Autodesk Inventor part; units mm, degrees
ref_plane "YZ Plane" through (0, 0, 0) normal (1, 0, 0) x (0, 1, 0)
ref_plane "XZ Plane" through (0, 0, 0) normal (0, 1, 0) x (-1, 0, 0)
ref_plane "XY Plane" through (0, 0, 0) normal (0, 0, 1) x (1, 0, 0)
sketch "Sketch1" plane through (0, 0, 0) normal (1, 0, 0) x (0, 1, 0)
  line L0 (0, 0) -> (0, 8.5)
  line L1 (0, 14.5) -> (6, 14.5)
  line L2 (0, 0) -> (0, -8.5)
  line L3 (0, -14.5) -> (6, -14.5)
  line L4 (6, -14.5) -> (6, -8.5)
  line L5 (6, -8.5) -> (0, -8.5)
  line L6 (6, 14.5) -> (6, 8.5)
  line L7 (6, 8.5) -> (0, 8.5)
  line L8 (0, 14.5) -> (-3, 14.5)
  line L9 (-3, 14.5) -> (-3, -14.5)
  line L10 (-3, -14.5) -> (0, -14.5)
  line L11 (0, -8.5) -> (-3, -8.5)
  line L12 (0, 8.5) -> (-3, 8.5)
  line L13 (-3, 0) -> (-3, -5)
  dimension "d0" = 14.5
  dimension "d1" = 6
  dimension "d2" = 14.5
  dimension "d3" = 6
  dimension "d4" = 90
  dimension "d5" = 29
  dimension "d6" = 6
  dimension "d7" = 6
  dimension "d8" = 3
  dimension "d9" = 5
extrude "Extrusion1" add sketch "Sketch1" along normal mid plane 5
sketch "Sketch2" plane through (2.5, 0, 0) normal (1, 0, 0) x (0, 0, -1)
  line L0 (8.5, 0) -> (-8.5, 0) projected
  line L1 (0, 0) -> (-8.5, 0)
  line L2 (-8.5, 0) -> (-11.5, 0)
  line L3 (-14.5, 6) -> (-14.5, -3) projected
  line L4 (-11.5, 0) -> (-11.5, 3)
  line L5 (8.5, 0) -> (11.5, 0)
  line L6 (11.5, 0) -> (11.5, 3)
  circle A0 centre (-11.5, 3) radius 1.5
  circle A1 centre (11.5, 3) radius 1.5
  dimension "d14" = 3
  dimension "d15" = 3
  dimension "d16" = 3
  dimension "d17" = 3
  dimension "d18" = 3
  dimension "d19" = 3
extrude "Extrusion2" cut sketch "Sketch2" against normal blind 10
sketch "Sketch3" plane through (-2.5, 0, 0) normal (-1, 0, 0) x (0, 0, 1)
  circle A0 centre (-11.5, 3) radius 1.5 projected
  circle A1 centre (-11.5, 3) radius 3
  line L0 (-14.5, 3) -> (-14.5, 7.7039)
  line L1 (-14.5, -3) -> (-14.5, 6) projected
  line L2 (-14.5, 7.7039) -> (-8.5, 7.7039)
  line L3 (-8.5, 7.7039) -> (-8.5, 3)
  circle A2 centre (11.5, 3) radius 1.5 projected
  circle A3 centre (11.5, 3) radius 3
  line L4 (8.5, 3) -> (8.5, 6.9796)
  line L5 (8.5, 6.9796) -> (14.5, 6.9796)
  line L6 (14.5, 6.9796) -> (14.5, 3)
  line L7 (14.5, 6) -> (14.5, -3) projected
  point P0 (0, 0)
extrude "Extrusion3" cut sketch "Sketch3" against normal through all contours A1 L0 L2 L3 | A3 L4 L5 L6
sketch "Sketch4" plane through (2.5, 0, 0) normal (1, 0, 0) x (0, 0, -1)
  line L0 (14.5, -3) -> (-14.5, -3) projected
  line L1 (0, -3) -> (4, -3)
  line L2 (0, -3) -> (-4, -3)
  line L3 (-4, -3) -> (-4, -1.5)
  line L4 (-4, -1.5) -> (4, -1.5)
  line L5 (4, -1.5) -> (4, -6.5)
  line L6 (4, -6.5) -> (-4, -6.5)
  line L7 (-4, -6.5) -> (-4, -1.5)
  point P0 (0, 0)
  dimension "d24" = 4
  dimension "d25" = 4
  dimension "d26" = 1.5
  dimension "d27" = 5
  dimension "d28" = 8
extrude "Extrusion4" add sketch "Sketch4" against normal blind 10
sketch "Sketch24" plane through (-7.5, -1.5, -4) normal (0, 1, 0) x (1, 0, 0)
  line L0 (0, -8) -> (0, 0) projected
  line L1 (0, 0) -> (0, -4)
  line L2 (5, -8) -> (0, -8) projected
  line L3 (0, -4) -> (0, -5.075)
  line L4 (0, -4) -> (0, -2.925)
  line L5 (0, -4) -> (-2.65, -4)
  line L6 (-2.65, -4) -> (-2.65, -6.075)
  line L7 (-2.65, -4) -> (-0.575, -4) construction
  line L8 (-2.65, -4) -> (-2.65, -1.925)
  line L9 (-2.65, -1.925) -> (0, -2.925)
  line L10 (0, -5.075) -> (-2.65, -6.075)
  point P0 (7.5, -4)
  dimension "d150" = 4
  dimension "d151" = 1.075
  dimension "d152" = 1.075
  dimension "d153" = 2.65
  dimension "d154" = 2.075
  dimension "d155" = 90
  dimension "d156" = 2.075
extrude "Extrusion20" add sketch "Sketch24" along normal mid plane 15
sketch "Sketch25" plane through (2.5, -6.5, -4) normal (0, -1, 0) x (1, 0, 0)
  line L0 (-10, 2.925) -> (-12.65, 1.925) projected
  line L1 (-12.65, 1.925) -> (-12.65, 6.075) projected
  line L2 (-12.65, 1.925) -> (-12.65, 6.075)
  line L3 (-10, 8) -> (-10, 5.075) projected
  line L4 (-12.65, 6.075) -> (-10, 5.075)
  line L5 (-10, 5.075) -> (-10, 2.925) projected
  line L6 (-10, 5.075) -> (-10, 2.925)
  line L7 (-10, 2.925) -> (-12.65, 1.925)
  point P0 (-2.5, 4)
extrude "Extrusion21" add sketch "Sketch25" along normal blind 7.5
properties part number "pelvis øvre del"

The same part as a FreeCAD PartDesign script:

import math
import FreeCAD as App
import Part
import Sketcher
from FreeCAD import Vector
Q = App.Units.Quantity


def add_polygon(sketch, points):
    """Adds a closed chain of lines whose ends are joined by coincident constraints."""
    first, n = sketch.GeometryCount, len(points)
    for a, b in zip(points, points[1:] + points[:1]):
        sketch.addGeometry(Part.LineSegment(App.Vector(*a, 0), App.Vector(*b, 0)), False)
    for i in range(n):
        sketch.addConstraint(Sketcher.Constraint("Coincident", first + i, 2, first + (i + 1) % n, 1))

doc = App.newDocument("Part")
body = doc.addObject("PartDesign::Body", "Body")

sketch1 = body.newObject("Sketcher::SketchObject", "Sketch")
sketch1.AttachmentSupport = (doc.getObject("YZ_Plane"), [""])
sketch1.MapMode = "FlatFace"
add_polygon(sketch1, [(0, -8), (0, 8), (6, 8), (6, 14), (-3, 14), (-3, -14), (6, -14), (6, -8)])
sketch1.addConstraint(Sketcher.Constraint("Vertical", 0))
sketch1.addConstraint(Sketcher.Constraint("Horizontal", 1))
sketch1.addConstraint(Sketcher.Constraint("Vertical", 2))
sketch1.addConstraint(Sketcher.Constraint("Horizontal", 3))
sketch1.addConstraint(Sketcher.Constraint("Vertical", 4))
sketch1.addConstraint(Sketcher.Constraint("Horizontal", 5))
sketch1.addConstraint(Sketcher.Constraint("Vertical", 6))
sketch1.addConstraint(Sketcher.Constraint("Horizontal", 7))
sketch1.addConstraint(Sketcher.Constraint("Symmetric", 0, 2, 7, 2, -1, 1))
sketch1.addConstraint(Sketcher.Constraint("Symmetric", 2, 2, 5, 2, -1))
sketch1.addConstraint(Sketcher.Constraint("Equal", 7, 2))
sketch1.addConstraint(Sketcher.Constraint("DistanceX", 1, 1, 1, 2, Q("6 mm")))
sketch1.addConstraint(Sketcher.Constraint("DistanceY", 4, 2, 4, 1, Q("29 mm")))
sketch1.addConstraint(Sketcher.Constraint("DistanceX", 3, 2, -1, 1, Q("3 mm")))
pad1 = body.newObject("PartDesign::Pad", "Pad")
pad1.Profile = sketch1
pad1.Length = 5
pad1.Midplane = True

sketch2 = body.newObject("Sketcher::SketchObject", "Sketch001")
sketch2.AttachmentSupport = (doc.getObject("YZ_Plane"), [""])
sketch2.MapMode = "FlatFace"
sketch2.AttachmentOffset = App.Placement(Vector(0, 0, 2.5), App.Rotation())
sketch2.addGeometry(Part.Circle(Vector(3, 11.5, 0), Vector(0, 0, 1), 1.5), False)
sketch2.addGeometry(Part.Circle(Vector(3, -11.5, 0), Vector(0, 0, 1), 1.5), False)
sketch2.addConstraint(Sketcher.Constraint("Equal", 0, 1))
sketch2.addConstraint(Sketcher.Constraint("Symmetric", 0, 3, 1, 3, -1))
sketch2.addConstraint(Sketcher.Constraint("Diameter", 0, Q("3 mm")))
sketch2.addConstraint(Sketcher.Constraint("DistanceX", -1, 1, 0, 3, Q("3 mm")))
sketch2.addConstraint(Sketcher.Constraint("DistanceY", 1, 3, 0, 3, Q("23 mm")))
pocket1 = body.newObject("PartDesign::Pocket", "Pocket")
pocket1.Profile = sketch2
pocket1.Length = 10

sketch3 = body.newObject("Sketcher::SketchObject", "Sketch002")
sketch3.AttachmentSupport = (doc.getObject("YZ_Plane"), [""])
sketch3.MapMode = "FlatFace"
sketch3.AttachmentOffset = App.Placement(Vector(0, 0, -2.5), App.Rotation())
sketch3.addGeometry(Part.ArcOfCircle(Part.Circle(Vector(3, -11.5, 0), Vector(0, 0, 1), 3), math.radians(-90), math.radians(90)), False)
sketch3.addGeometry(Part.LineSegment(Vector(3, -8.5, 0), Vector(7.7, -8.5, 0)), False)
sketch3.addGeometry(Part.LineSegment(Vector(7.7, -8.5, 0), Vector(7.7, -14.5, 0)), False)
sketch3.addGeometry(Part.LineSegment(Vector(7.7, -14.5, 0), Vector(3, -14.5, 0)), False)
sketch3.addGeometry(Part.ArcOfCircle(Part.Circle(Vector(3, 11.5, 0), Vector(0, 0, 1), 3), math.radians(-90), math.radians(90)), False)
sketch3.addGeometry(Part.LineSegment(Vector(3, 14.5, 0), Vector(7, 14.5, 0)), False)
sketch3.addGeometry(Part.LineSegment(Vector(7, 14.5, 0), Vector(7, 8.5, 0)), False)
sketch3.addGeometry(Part.LineSegment(Vector(7, 8.5, 0), Vector(3, 8.5, 0)), False)
sketch3.addConstraint(Sketcher.Constraint("Tangent", 0, 2, 1, 1))
sketch3.addConstraint(Sketcher.Constraint("Coincident", 1, 2, 2, 1))
sketch3.addConstraint(Sketcher.Constraint("Coincident", 2, 2, 3, 1))
sketch3.addConstraint(Sketcher.Constraint("Tangent", 3, 2, 0, 1))
sketch3.addConstraint(Sketcher.Constraint("Tangent", 4, 2, 5, 1))
sketch3.addConstraint(Sketcher.Constraint("Coincident", 5, 2, 6, 1))
sketch3.addConstraint(Sketcher.Constraint("Coincident", 6, 2, 7, 1))
sketch3.addConstraint(Sketcher.Constraint("Tangent", 7, 2, 4, 1))
sketch3.addConstraint(Sketcher.Constraint("Horizontal", 1))
sketch3.addConstraint(Sketcher.Constraint("Vertical", 2))
sketch3.addConstraint(Sketcher.Constraint("Horizontal", 3))
sketch3.addConstraint(Sketcher.Constraint("Horizontal", 5))
sketch3.addConstraint(Sketcher.Constraint("Vertical", 6))
sketch3.addConstraint(Sketcher.Constraint("Horizontal", 7))
sketch3.addConstraint(Sketcher.Constraint("Equal", 0, 4))
sketch3.addConstraint(Sketcher.Constraint("Symmetric", 0, 3, 4, 3, -1))
sketch3.addConstraint(Sketcher.Constraint("Radius", 0, Q("3 mm")))
sketch3.addConstraint(Sketcher.Constraint("DistanceX", -1, 1, 0, 3, Q("3 mm")))
sketch3.addConstraint(Sketcher.Constraint("DistanceY", 0, 3, 4, 3, Q("23 mm")))
sketch3.addConstraint(Sketcher.Constraint("DistanceX", 1, 1, 1, 2, Q("4.704 mm")))
sketch3.addConstraint(Sketcher.Constraint("DistanceX", 5, 1, 5, 2, Q("3.9796 mm")))
pocket2 = body.newObject("PartDesign::Pocket", "Pocket001")
pocket2.Profile = sketch3
pocket2.Type = "ThroughAll"
pocket2.Reversed = True

sketch4 = body.newObject("Sketcher::SketchObject", "Sketch003")
sketch4.AttachmentSupport = (doc.getObject("YZ_Plane"), [""])
sketch4.MapMode = "FlatFace"
sketch4.AttachmentOffset = App.Placement(Vector(0, 0, 2.5), App.Rotation())
add_polygon(sketch4, [(-6, -4), (-2, -4), (-2, 4), (-6, 4)])
sketch4.addConstraint(Sketcher.Constraint("Horizontal", 0))
sketch4.addConstraint(Sketcher.Constraint("Vertical", 1))
sketch4.addConstraint(Sketcher.Constraint("Horizontal", 2))
sketch4.addConstraint(Sketcher.Constraint("Vertical", 3))
sketch4.addConstraint(Sketcher.Constraint("DistanceX", 0, 1, 0, 2, Q("5 mm")))
sketch4.addConstraint(Sketcher.Constraint("DistanceY", 1, 1, 1, 2, Q("8 mm")))
sketch4.addConstraint(Sketcher.Constraint("DistanceY", 0, 2, -1, 1, Q("4 mm")))
sketch4.addConstraint(Sketcher.Constraint("DistanceX", 0, 2, -1, 1, Q("1.5 mm")))
pad2 = body.newObject("PartDesign::Pad", "Pad001")
pad2.Profile = sketch4
pad2.Length = 10
pad2.Reversed = True

sketch5 = body.newObject("Sketcher::SketchObject", "Sketch004")
sketch5.AttachmentSupport = (doc.getObject("XZ_Plane"), [""])
sketch5.MapMode = "FlatFace"
sketch5.AttachmentOffset = App.Placement(Vector(0, 0, 1.5), App.Rotation())
add_polygon(sketch5, [(-10.2, 2.1), (-7.5, 1.1), (-7.5, -1.1), (-10.2, -2.1)])
sketch5.addConstraint(Sketcher.Constraint("Vertical", 1))
sketch5.addConstraint(Sketcher.Constraint("Vertical", 3))
sketch5.addConstraint(Sketcher.Constraint("Equal", 0, 2))
sketch5.addConstraint(Sketcher.Constraint("DistanceX", 2, 2, 1, 2, Q("2.65 mm")))
sketch5.addConstraint(Sketcher.Constraint("DistanceY", -1, 1, 0, 2, Q("1.075 mm")))
sketch5.addConstraint(Sketcher.Constraint("DistanceY", 1, 2, -1, 1, Q("1.075 mm")))
sketch5.addConstraint(Sketcher.Constraint("DistanceY", 2, 2, -1, 1, Q("2.075 mm")))
sketch5.addConstraint(Sketcher.Constraint("DistanceX", 0, 2, -1, 1, Q("7.5 mm")))
pad3 = body.newObject("PartDesign::Pad", "Pad002")
pad3.Profile = sketch5
pad3.Length = 15
pad3.Midplane = True

sketch6 = body.newObject("Sketcher::SketchObject", "Sketch005")
sketch6.AttachmentSupport = (doc.getObject("XZ_Plane"), [""])
sketch6.MapMode = "FlatFace"
sketch6.AttachmentOffset = App.Placement(Vector(0, 0, 6.5), App.Rotation())
add_polygon(sketch6, [(-10.2, -2.1), (-7.5, -1.1), (-7.5, 1.1), (-10.2, 2.1)])
sketch6.addConstraint(Sketcher.Constraint("Vertical", 1))
sketch6.addConstraint(Sketcher.Constraint("Vertical", 3))
sketch6.addConstraint(Sketcher.Constraint("Equal", 0, 2))
sketch6.addConstraint(Sketcher.Constraint("DistanceY", 1, 2, 2, 2, Q("1 mm")))
sketch6.addConstraint(Sketcher.Constraint("DistanceY", 1, 1, 1, 2, Q("2.15 mm")))
sketch6.addConstraint(Sketcher.Constraint("DistanceX", 0, 2, -1, 1, Q("7.5 mm")))
sketch6.addConstraint(Sketcher.Constraint("DistanceX", 2, 2, -1, 1, Q("10.15 mm")))
sketch6.addConstraint(Sketcher.Constraint("DistanceY", 0, 2, -1, 1, Q("1.075 mm")))
pad4 = body.newObject("PartDesign::Pad", "Pad003")
pad4.Profile = sketch6
pad4.Length = 7.5

doc.recompute()
